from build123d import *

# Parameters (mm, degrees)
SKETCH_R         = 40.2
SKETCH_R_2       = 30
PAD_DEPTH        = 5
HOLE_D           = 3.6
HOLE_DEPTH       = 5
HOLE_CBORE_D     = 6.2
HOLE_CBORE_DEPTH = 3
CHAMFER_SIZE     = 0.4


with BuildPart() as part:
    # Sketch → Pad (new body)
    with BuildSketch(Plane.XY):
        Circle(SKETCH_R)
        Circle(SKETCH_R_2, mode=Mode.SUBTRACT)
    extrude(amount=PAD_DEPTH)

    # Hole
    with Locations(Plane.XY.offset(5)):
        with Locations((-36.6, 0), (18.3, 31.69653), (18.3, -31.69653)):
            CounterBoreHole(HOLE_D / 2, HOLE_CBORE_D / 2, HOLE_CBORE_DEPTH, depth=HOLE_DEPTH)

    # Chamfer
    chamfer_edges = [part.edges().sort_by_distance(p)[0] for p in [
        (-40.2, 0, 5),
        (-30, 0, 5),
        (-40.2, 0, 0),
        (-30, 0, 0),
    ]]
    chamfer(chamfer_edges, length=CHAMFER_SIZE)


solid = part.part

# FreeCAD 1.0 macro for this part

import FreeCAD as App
import Part
import Sketcher
from FreeCAD import Vector
Q = App.Units.Quantity


def edges_at(feature, points):
    """Names of the edges that pass closest to the given points."""
    edges = feature.Shape.Edges
    near = lambda p: min(range(len(edges)), key=lambda i: edges[i].distToShape(Part.Vertex(*p))[0])
    return sorted({f"Edge{near(p) + 1}" for p in points})

doc = App.newDocument("Part")
body = doc.addObject("PartDesign::Body", "Body")

sketch1 = doc.addObject("Sketcher::SketchObject", "Sketch")
body.addObject(sketch1)
sketch1.AttachmentSupport = (doc.XY_Plane, [""])
sketch1.MapMode = "FlatFace"
sketch1.addGeometry([
    Part.Circle(Vector(0, 0, 0), Vector(0, 0, 1), 40.2),
    Part.Circle(Vector(0, 0, 0), Vector(0, 0, 1), 30),
], False)
sketch1.addConstraint([
    Sketcher.Constraint("Coincident", 0, 3, -1, 1),
    Sketcher.Constraint("Coincident", 1, 3, -1, 1),
    Sketcher.Constraint("Diameter", 1, Q("60 mm")),
    Sketcher.Constraint("Diameter", 0, Q("80.4 mm")),
])
pad1 = doc.addObject("PartDesign::Pad", "Pad")
body.addObject(pad1)
pad1.Profile = sketch1
pad1.Length = 5

sketch2 = doc.addObject("Sketcher::SketchObject", "Sketch001")
body.addObject(sketch2)
sketch2.AttachmentSupport = (doc.XY_Plane, [""])
sketch2.MapMode = "FlatFace"
sketch2.AttachmentOffset = App.Placement(Vector(0, 0, 5), App.Rotation())
sketch2.addGeometry([
    Part.Circle(Vector(-36.6, 0, 0), Vector(0, 0, 1), 1.8),
    Part.Circle(Vector(18.3, 31.69653, 0), Vector(0, 0, 1), 1.8),
    Part.Circle(Vector(18.3, -31.69653, 0), Vector(0, 0, 1), 1.8),
], False)
sketch2.addConstraint([
    Sketcher.Constraint("Equal", 0, 1),
    Sketcher.Constraint("Equal", 1, 2),
    Sketcher.Constraint("Symmetric", 1, 3, 2, 3, -1),
    Sketcher.Constraint("PointOnObject", 0, 3, -1),
    Sketcher.Constraint("Diameter", 0, Q("3.6 mm")),
    Sketcher.Constraint("DistanceX", 0, 3, -1, 1, Q("36.6 mm")),
    Sketcher.Constraint("DistanceX", -1, 1, 1, 3, Q("18.3 mm")),
    Sketcher.Constraint("DistanceY", -1, 1, 1, 3, Q("31.69653 mm")),
])
doc.recompute()
hole = doc.addObject("PartDesign::Hole", "Hole")
body.addObject(hole)
hole.Profile = sketch2
hole.ThreadType = "None"
hole.Diameter = 3.6
hole.DepthType = "Dimension"
hole.Depth = 5
hole.DrillPoint = "Flat"
hole.HoleCutType = "Counterbore"
hole.HoleCutDiameter = 6.2
hole.HoleCutDepth = 3
doc.recompute()

chamfer = doc.addObject("PartDesign::Chamfer", "Chamfer")
body.addObject(chamfer)
chamfer.Base = (hole, edges_at(hole, [
    (-40.2, 0, 5),
    (-30, 0, 5),
    (-40.2, 0, 0),
    (-30, 0, 0),
]))
chamfer.Size = 0.4

doc.recompute()
